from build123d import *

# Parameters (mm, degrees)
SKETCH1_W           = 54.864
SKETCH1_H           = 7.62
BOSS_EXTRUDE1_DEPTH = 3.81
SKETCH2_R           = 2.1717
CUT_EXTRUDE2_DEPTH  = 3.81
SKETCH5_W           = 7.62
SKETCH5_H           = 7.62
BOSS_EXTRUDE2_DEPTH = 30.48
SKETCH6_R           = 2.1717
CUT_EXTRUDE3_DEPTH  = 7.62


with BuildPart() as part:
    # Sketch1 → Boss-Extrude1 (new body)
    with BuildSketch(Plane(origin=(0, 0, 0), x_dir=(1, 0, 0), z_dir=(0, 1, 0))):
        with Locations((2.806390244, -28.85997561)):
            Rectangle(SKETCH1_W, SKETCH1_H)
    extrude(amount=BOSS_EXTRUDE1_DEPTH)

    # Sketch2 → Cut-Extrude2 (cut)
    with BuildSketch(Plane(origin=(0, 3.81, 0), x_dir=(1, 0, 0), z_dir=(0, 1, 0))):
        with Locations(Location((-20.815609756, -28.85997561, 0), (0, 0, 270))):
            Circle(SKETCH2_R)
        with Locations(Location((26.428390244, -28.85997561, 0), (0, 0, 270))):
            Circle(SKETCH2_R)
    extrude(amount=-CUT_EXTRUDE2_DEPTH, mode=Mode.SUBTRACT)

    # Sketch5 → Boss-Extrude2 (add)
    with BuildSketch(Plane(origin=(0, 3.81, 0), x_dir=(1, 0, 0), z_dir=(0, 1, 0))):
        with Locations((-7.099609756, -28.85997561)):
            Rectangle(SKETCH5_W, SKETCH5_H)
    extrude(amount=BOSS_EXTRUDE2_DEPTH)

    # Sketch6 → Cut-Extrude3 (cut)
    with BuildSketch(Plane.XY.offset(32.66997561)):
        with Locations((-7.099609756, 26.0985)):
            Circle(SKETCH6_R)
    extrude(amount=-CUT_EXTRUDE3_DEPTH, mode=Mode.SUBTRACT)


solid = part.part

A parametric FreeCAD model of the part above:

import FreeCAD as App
import Part
import Sketcher
from FreeCAD import Vector
Q = App.Units.Quantity

doc = App.newDocument("Part")
body = doc.addObject("PartDesign::Body", "Body")

sketch1 = doc.addObject("Sketcher::SketchObject", "Sketch")
body.addObject(sketch1)
sketch1.AttachmentSupport = (doc.XZ_Plane, [""])
sketch1.MapMode = "FlatFace"
sketch1.addGeometry(Part.LineSegment(Vector(-24.62561, 25.049976, 0), Vector(-24.62561, 32.669976, 0)), False)
sketch1.addGeometry(Part.LineSegment(Vector(-24.62561, 32.669976, 0), Vector(30.23839, 32.669976, 0)), False)
sketch1.addGeometry(Part.LineSegment(Vector(30.23839, 32.669976, 0), Vector(30.23839, 25.049976, 0)), False)
sketch1.addGeometry(Part.LineSegment(Vector(30.23839, 25.049976, 0), Vector(-24.62561, 25.049976, 0)), False)
sketch1.addConstraint(Sketcher.Constraint("Coincident", 0, 2, 1, 1))
sketch1.addConstraint(Sketcher.Constraint("Coincident", 1, 2, 2, 1))
sketch1.addConstraint(Sketcher.Constraint("Coincident", 2, 2, 3, 1))
sketch1.addConstraint(Sketcher.Constraint("Coincident", 3, 2, 0, 1))
sketch1.addConstraint(Sketcher.Constraint("Vertical", 0))
sketch1.addConstraint(Sketcher.Constraint("Horizontal", 1))
sketch1.addConstraint(Sketcher.Constraint("Vertical", 2))
sketch1.addConstraint(Sketcher.Constraint("Horizontal", 3))
sketch1.addConstraint(Sketcher.Constraint("DistanceY", 0, 1, 0, 2, Q("0.3 in")))
sketch1.addConstraint(Sketcher.Constraint("DistanceX", 1, 1, 1, 2, Q("2.16 in")))
sketch1.addConstraint(Sketcher.Constraint("DistanceX", 0, 2, -1, 1, Q("24.62561 mm")))
sketch1.addConstraint(Sketcher.Constraint("DistanceY", -1, 1, 0, 2, Q("32.669976 mm")))
pad1 = doc.addObject("PartDesign::Pad", "Pad")
body.addObject(pad1)
pad1.Profile = sketch1
pad1.Length = Q("0.15 in")
pad1.Reversed = True

sketch2 = doc.addObject("Sketcher::SketchObject", "Sketch001")
body.addObject(sketch2)
sketch2.AttachmentSupport = (doc.XZ_Plane, [""])
sketch2.MapMode = "FlatFace"
sketch2.AttachmentOffset = App.Placement(Vector(0, 0, -0.15 * 25.4), App.Rotation())
sketch2.addGeometry(Part.Circle(Vector(-20.81561, 28.859976, 0), Vector(0, 0, 1), 2.1717), False)
sketch2.addGeometry(Part.Circle(Vector(26.42839, 28.859976, 0), Vector(0, 0, 1), 2.1717), False)
sketch2.addConstraint(Sketcher.Constraint("Equal", 0, 1))
sketch2.addConstraint(Sketcher.Constraint("Horizontal", 0, 3, 1, 3))
sketch2.addConstraint(Sketcher.Constraint("Diameter", 0, Q("0.171 in")))
sketch2.addConstraint(Sketcher.Constraint("DistanceX", 0, 3, 1, 3, Q("1.86 in")))
sketch2.addConstraint(Sketcher.Constraint("DistanceX", 0, 3, -1, 1, Q("20.81561 mm")))
sketch2.addConstraint(Sketcher.Constraint("DistanceY", -1, 1, 0, 3, Q("28.859976 mm")))
pocket1 = doc.addObject("PartDesign::Pocket", "Pocket")
body.addObject(pocket1)
pocket1.Profile = sketch2
pocket1.Length = Q("0.15 in")
pocket1.Reversed = True

sketch3 = doc.addObject("Sketcher::SketchObject", "Sketch002")
body.addObject(sketch3)
sketch3.AttachmentSupport = (doc.XZ_Plane, [""])
sketch3.MapMode = "FlatFace"
sketch3.AttachmentOffset = App.Placement(Vector(0, 0, -0.15 * 25.4), App.Rotation())
sketch3.addGeometry(Part.LineSegment(Vector(-10.90961, 25.049976, 0), Vector(-10.90961, 32.669976, 0)), False)
sketch3.addGeometry(Part.LineSegment(Vector(-10.90961, 32.669976, 0), Vector(-3.28961, 32.669976, 0)), False)
sketch3.addGeometry(Part.LineSegment(Vector(-3.28961, 32.669976, 0), Vector(-3.28961, 25.049976, 0)), False)
sketch3.addGeometry(Part.LineSegment(Vector(-3.28961, 25.049976, 0), Vector(-10.90961, 25.049976, 0)), False)
sketch3.addConstraint(Sketcher.Constraint("Coincident", 0, 2, 1, 1))
sketch3.addConstraint(Sketcher.Constraint("Coincident", 1, 2, 2, 1))
sketch3.addConstraint(Sketcher.Constraint("Coincident", 2, 2, 3, 1))
sketch3.addConstraint(Sketcher.Constraint("Coincident", 3, 2, 0, 1))
sketch3.addConstraint(Sketcher.Constraint("Vertical", 0))
sketch3.addConstraint(Sketcher.Constraint("Horizontal", 1))
sketch3.addConstraint(Sketcher.Constraint("Vertical", 2))
sketch3.addConstraint(Sketcher.Constraint("Horizontal", 3))
sketch3.addConstraint(Sketcher.Constraint("Equal", 3, 0))
sketch3.addConstraint(Sketcher.Constraint("DistanceX", 1, 1, 1, 2, Q("0.3 in")))
sketch3.addConstraint(Sketcher.Constraint("DistanceX", 0, 2, -1, 1, Q("10.90961 mm")))
sketch3.addConstraint(Sketcher.Constraint("DistanceY", -1, 1, 0, 2, Q("32.669976 mm")))
pad2 = doc.addObject("PartDesign::Pad", "Pad001")
body.addObject(pad2)
pad2.Profile = sketch3
pad2.Length = Q("1.2 in")
pad2.Reversed = True

sketch4 = doc.addObject("Sketcher::SketchObject", "Sketch003")
body.addObject(sketch4)
sketch4.AttachmentSupport = (doc.XY_Plane, [""])
sketch4.MapMode = "FlatFace"
sketch4.AttachmentOffset = App.Placement(Vector(0, 0, 32.669976), App.Rotation())
sketch4.addGeometry(Part.Circle(Vector(-7.09961, 26.0985, 0), Vector(0, 0, 1), 2.1717), False)
sketch4.addConstraint(Sketcher.Constraint("Diameter", 0, Q("0.171 in")))
sketch4.addConstraint(Sketcher.Constraint("DistanceY", -1, 1, 0, 3, Q("1.0275 in")))
sketch4.addConstraint(Sketcher.Constraint("DistanceX", 0, 3, -1, 1, Q("7.09961 mm")))
pocket2 = doc.addObject("PartDesign::Pocket", "Pocket001")
body.addObject(pocket2)
pocket2.Profile = sketch4
pocket2.Length = Q("0.3 in")

doc.recompute()
